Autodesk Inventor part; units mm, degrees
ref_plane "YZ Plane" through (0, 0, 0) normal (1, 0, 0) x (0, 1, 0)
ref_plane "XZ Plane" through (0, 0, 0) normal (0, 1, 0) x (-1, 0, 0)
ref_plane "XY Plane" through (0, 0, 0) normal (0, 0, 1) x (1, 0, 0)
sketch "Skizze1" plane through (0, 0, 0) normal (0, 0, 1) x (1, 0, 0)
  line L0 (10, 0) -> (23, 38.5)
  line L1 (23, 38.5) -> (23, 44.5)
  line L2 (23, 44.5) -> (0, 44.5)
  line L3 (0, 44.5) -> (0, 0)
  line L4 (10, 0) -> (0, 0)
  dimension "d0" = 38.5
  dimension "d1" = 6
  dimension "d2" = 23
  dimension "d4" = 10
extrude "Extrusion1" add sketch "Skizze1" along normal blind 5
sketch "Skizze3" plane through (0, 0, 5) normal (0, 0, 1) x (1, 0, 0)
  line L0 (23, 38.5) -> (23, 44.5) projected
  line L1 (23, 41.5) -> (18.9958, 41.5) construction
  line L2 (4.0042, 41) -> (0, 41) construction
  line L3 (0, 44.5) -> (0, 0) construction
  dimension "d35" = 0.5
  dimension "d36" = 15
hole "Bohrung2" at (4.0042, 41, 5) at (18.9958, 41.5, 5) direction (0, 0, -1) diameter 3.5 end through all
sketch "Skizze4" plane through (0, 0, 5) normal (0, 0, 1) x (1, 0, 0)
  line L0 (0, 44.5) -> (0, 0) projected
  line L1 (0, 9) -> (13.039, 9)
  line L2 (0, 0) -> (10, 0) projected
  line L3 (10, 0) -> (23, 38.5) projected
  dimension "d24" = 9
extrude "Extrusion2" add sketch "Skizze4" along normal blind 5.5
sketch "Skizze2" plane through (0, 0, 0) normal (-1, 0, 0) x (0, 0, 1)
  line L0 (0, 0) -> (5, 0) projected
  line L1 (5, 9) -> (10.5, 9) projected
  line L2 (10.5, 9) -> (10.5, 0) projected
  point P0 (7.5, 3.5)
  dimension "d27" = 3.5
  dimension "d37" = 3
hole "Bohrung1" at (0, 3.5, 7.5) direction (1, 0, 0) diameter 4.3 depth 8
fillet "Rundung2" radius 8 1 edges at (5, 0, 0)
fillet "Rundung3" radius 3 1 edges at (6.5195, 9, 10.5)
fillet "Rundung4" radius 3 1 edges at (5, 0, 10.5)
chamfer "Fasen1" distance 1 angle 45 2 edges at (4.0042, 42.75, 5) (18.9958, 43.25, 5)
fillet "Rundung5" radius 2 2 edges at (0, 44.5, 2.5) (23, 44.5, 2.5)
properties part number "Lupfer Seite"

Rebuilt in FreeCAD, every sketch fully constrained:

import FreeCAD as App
import Part
import Sketcher
from FreeCAD import Vector


def edges_at(feature, points):
    """Names of the edges that pass closest to the given points."""
    edges = feature.Shape.Edges
    near = lambda p: min(range(len(edges)), key=lambda i: edges[i].distToShape(Part.Vertex(*p))[0])
    return sorted({f"Edge{near(p) + 1}" for p in points})


def add_polygon(sketch, points):
    """Adds a closed chain of lines whose ends are joined by coincident constraints."""
    first, n = sketch.GeometryCount, len(points)
    for a, b in zip(points, points[1:] + points[:1]):
        sketch.addGeometry(Part.LineSegment(App.Vector(*a, 0), App.Vector(*b, 0)), False)
    for i in range(n):
        sketch.addConstraint(Sketcher.Constraint("Coincident", first + i, 2, first + (i + 1) % n, 1))

doc = App.newDocument("Part")
body = doc.addObject("PartDesign::Body", "Body")

sketch1 = body.newObject("Sketcher::SketchObject", "Sketch")
sketch1.AttachmentSupport = (doc.getObject("XY_Plane"), [""])
sketch1.MapMode = "FlatFace"
add_polygon(sketch1, [(0, 0), (10, 0), (23, 38), (23, 44), (0, 44)])
sketch1.addConstraint([
    Sketcher.Constraint("Horizontal", 0),
    Sketcher.Constraint("Vertical", 2),
    Sketcher.Constraint("Horizontal", 3),
    Sketcher.Constraint("Vertical", 4),
    Sketcher.Constraint("Coincident", 4, 2, -1, 1),
    Sketcher.Constraint("DistanceX", 0, 1, 0, 2, 10.0),
    Sketcher.Constraint("DistanceX", 3, 2, 3, 1, 23.0),
    Sketcher.Constraint("DistanceY", 2, 1, 2, 2, 6.0),
    Sketcher.Constraint("DistanceY", -1, 1, 1, 2, 38.5),
])
pad1 = body.newObject("PartDesign::Pad", "Pad")
pad1.Profile = sketch1
pad1.Length = 5

sketch2 = body.newObject("Sketcher::SketchObject", "Sketch001")
sketch2.AttachmentSupport = (doc.getObject("XY_Plane"), [""])
sketch2.MapMode = "FlatFace"
sketch2.AttachmentOffset = App.Placement(Vector(0, 0, 5), App.Rotation())
sketch2.addGeometry([
    Part.Circle(Vector(4, 41, 0), Vector(0, 0, 1), 1.8),
    Part.Circle(Vector(19, 41.5, 0), Vector(0, 0, 1), 1.8),
], False)
sketch2.addConstraint([
    Sketcher.Constraint("Equal", 0, 1),
    Sketcher.Constraint("Diameter", 0, 3.5),
    Sketcher.Constraint("DistanceY", -1, 1, 0, 3, 41.0),
    Sketcher.Constraint("DistanceY", -1, 1, 1, 3, 41.5),
    Sketcher.Constraint("DistanceX", -1, 1, 0, 3, 4.0042),
    Sketcher.Constraint("DistanceX", -1, 1, 1, 3, 18.9958),
])
doc.recompute()
hole = body.newObject("PartDesign::Hole", "Hole")
hole.Profile = sketch2
hole.ThreadType = "None"
hole.Diameter = 3.5
hole.DepthType = "ThroughAll"

sketch3 = body.newObject("Sketcher::SketchObject", "Sketch002")
sketch3.AttachmentSupport = (doc.getObject("XY_Plane"), [""])
sketch3.MapMode = "FlatFace"
sketch3.AttachmentOffset = App.Placement(Vector(0, 0, 5), App.Rotation())
add_polygon(sketch3, [(13, 9), (0, 9), (0, 0), (10, 0)])
sketch3.addConstraint([
    Sketcher.Constraint("Horizontal", 0),
    Sketcher.Constraint("Vertical", 1),
    Sketcher.Constraint("Horizontal", 2),
    Sketcher.Constraint("Coincident", 1, 2, -1, 1),
    Sketcher.Constraint("DistanceY", 1, 2, 1, 1, 9.0),
    Sketcher.Constraint("DistanceX", 2, 1, 2, 2, 10.0),
    Sketcher.Constraint("DistanceX", 0, 2, 0, 1, 13.039),
])
pad2 = body.newObject("PartDesign::Pad", "Pad001")
pad2.Profile = sketch3
pad2.Length = 5.5

sketch4 = body.newObject("Sketcher::SketchObject", "Sketch003")
sketch4.AttachmentSupport = (doc.getObject("YZ_Plane"), [""])
sketch4.MapMode = "FlatFace"
sketch4.addGeometry(Part.Circle(Vector(3.5, 7.5, 0), Vector(0, 0, 1), 2.1), False)
sketch4.addConstraint([
    Sketcher.Constraint("Diameter", 0, 4.3),
    Sketcher.Constraint("DistanceX", -1, 1, 0, 3, 3.5),
    Sketcher.Constraint("DistanceY", -1, 1, 0, 3, 7.5),
])
doc.recompute()
hole2 = body.newObject("PartDesign::Hole", "Hole001")
hole2.Profile = sketch4
hole2.ThreadType = "None"
hole2.Diameter = 4.3
hole2.DepthType = "Dimension"
hole2.Depth = 8
hole2.DrillPoint = "Flat"
hole2.Reversed = True
doc.recompute()

fillet = body.newObject("PartDesign::Fillet", "Fillet")
fillet.Base = (hole2, edges_at(hole2, [(5, 0, 0)]))
fillet.Radius = 8
doc.recompute()

fillet2 = body.newObject("PartDesign::Fillet", "Fillet001")
fillet2.Base = (fillet, edges_at(fillet, [(6.519, 9, 10.5)]))
fillet2.Radius = 3
doc.recompute()

fillet3 = body.newObject("PartDesign::Fillet", "Fillet002")
fillet3.Base = (fillet2, edges_at(fillet2, [(5, 0, 10.5)]))
fillet3.Radius = 3
doc.recompute()

chamfer = body.newObject("PartDesign::Chamfer", "Chamfer")
chamfer.Base = (fillet3, edges_at(fillet3, [(4.004, 42.75, 5), (18.996, 43.25, 5)]))
chamfer.Size = 1
doc.recompute()

fillet4 = body.newObject("PartDesign::Fillet", "Fillet003")
fillet4.Base = (chamfer, edges_at(chamfer, [(0, 44.5, 2.5), (23, 44.5, 2.5)]))
fillet4.Radius = 2

doc.recompute()
